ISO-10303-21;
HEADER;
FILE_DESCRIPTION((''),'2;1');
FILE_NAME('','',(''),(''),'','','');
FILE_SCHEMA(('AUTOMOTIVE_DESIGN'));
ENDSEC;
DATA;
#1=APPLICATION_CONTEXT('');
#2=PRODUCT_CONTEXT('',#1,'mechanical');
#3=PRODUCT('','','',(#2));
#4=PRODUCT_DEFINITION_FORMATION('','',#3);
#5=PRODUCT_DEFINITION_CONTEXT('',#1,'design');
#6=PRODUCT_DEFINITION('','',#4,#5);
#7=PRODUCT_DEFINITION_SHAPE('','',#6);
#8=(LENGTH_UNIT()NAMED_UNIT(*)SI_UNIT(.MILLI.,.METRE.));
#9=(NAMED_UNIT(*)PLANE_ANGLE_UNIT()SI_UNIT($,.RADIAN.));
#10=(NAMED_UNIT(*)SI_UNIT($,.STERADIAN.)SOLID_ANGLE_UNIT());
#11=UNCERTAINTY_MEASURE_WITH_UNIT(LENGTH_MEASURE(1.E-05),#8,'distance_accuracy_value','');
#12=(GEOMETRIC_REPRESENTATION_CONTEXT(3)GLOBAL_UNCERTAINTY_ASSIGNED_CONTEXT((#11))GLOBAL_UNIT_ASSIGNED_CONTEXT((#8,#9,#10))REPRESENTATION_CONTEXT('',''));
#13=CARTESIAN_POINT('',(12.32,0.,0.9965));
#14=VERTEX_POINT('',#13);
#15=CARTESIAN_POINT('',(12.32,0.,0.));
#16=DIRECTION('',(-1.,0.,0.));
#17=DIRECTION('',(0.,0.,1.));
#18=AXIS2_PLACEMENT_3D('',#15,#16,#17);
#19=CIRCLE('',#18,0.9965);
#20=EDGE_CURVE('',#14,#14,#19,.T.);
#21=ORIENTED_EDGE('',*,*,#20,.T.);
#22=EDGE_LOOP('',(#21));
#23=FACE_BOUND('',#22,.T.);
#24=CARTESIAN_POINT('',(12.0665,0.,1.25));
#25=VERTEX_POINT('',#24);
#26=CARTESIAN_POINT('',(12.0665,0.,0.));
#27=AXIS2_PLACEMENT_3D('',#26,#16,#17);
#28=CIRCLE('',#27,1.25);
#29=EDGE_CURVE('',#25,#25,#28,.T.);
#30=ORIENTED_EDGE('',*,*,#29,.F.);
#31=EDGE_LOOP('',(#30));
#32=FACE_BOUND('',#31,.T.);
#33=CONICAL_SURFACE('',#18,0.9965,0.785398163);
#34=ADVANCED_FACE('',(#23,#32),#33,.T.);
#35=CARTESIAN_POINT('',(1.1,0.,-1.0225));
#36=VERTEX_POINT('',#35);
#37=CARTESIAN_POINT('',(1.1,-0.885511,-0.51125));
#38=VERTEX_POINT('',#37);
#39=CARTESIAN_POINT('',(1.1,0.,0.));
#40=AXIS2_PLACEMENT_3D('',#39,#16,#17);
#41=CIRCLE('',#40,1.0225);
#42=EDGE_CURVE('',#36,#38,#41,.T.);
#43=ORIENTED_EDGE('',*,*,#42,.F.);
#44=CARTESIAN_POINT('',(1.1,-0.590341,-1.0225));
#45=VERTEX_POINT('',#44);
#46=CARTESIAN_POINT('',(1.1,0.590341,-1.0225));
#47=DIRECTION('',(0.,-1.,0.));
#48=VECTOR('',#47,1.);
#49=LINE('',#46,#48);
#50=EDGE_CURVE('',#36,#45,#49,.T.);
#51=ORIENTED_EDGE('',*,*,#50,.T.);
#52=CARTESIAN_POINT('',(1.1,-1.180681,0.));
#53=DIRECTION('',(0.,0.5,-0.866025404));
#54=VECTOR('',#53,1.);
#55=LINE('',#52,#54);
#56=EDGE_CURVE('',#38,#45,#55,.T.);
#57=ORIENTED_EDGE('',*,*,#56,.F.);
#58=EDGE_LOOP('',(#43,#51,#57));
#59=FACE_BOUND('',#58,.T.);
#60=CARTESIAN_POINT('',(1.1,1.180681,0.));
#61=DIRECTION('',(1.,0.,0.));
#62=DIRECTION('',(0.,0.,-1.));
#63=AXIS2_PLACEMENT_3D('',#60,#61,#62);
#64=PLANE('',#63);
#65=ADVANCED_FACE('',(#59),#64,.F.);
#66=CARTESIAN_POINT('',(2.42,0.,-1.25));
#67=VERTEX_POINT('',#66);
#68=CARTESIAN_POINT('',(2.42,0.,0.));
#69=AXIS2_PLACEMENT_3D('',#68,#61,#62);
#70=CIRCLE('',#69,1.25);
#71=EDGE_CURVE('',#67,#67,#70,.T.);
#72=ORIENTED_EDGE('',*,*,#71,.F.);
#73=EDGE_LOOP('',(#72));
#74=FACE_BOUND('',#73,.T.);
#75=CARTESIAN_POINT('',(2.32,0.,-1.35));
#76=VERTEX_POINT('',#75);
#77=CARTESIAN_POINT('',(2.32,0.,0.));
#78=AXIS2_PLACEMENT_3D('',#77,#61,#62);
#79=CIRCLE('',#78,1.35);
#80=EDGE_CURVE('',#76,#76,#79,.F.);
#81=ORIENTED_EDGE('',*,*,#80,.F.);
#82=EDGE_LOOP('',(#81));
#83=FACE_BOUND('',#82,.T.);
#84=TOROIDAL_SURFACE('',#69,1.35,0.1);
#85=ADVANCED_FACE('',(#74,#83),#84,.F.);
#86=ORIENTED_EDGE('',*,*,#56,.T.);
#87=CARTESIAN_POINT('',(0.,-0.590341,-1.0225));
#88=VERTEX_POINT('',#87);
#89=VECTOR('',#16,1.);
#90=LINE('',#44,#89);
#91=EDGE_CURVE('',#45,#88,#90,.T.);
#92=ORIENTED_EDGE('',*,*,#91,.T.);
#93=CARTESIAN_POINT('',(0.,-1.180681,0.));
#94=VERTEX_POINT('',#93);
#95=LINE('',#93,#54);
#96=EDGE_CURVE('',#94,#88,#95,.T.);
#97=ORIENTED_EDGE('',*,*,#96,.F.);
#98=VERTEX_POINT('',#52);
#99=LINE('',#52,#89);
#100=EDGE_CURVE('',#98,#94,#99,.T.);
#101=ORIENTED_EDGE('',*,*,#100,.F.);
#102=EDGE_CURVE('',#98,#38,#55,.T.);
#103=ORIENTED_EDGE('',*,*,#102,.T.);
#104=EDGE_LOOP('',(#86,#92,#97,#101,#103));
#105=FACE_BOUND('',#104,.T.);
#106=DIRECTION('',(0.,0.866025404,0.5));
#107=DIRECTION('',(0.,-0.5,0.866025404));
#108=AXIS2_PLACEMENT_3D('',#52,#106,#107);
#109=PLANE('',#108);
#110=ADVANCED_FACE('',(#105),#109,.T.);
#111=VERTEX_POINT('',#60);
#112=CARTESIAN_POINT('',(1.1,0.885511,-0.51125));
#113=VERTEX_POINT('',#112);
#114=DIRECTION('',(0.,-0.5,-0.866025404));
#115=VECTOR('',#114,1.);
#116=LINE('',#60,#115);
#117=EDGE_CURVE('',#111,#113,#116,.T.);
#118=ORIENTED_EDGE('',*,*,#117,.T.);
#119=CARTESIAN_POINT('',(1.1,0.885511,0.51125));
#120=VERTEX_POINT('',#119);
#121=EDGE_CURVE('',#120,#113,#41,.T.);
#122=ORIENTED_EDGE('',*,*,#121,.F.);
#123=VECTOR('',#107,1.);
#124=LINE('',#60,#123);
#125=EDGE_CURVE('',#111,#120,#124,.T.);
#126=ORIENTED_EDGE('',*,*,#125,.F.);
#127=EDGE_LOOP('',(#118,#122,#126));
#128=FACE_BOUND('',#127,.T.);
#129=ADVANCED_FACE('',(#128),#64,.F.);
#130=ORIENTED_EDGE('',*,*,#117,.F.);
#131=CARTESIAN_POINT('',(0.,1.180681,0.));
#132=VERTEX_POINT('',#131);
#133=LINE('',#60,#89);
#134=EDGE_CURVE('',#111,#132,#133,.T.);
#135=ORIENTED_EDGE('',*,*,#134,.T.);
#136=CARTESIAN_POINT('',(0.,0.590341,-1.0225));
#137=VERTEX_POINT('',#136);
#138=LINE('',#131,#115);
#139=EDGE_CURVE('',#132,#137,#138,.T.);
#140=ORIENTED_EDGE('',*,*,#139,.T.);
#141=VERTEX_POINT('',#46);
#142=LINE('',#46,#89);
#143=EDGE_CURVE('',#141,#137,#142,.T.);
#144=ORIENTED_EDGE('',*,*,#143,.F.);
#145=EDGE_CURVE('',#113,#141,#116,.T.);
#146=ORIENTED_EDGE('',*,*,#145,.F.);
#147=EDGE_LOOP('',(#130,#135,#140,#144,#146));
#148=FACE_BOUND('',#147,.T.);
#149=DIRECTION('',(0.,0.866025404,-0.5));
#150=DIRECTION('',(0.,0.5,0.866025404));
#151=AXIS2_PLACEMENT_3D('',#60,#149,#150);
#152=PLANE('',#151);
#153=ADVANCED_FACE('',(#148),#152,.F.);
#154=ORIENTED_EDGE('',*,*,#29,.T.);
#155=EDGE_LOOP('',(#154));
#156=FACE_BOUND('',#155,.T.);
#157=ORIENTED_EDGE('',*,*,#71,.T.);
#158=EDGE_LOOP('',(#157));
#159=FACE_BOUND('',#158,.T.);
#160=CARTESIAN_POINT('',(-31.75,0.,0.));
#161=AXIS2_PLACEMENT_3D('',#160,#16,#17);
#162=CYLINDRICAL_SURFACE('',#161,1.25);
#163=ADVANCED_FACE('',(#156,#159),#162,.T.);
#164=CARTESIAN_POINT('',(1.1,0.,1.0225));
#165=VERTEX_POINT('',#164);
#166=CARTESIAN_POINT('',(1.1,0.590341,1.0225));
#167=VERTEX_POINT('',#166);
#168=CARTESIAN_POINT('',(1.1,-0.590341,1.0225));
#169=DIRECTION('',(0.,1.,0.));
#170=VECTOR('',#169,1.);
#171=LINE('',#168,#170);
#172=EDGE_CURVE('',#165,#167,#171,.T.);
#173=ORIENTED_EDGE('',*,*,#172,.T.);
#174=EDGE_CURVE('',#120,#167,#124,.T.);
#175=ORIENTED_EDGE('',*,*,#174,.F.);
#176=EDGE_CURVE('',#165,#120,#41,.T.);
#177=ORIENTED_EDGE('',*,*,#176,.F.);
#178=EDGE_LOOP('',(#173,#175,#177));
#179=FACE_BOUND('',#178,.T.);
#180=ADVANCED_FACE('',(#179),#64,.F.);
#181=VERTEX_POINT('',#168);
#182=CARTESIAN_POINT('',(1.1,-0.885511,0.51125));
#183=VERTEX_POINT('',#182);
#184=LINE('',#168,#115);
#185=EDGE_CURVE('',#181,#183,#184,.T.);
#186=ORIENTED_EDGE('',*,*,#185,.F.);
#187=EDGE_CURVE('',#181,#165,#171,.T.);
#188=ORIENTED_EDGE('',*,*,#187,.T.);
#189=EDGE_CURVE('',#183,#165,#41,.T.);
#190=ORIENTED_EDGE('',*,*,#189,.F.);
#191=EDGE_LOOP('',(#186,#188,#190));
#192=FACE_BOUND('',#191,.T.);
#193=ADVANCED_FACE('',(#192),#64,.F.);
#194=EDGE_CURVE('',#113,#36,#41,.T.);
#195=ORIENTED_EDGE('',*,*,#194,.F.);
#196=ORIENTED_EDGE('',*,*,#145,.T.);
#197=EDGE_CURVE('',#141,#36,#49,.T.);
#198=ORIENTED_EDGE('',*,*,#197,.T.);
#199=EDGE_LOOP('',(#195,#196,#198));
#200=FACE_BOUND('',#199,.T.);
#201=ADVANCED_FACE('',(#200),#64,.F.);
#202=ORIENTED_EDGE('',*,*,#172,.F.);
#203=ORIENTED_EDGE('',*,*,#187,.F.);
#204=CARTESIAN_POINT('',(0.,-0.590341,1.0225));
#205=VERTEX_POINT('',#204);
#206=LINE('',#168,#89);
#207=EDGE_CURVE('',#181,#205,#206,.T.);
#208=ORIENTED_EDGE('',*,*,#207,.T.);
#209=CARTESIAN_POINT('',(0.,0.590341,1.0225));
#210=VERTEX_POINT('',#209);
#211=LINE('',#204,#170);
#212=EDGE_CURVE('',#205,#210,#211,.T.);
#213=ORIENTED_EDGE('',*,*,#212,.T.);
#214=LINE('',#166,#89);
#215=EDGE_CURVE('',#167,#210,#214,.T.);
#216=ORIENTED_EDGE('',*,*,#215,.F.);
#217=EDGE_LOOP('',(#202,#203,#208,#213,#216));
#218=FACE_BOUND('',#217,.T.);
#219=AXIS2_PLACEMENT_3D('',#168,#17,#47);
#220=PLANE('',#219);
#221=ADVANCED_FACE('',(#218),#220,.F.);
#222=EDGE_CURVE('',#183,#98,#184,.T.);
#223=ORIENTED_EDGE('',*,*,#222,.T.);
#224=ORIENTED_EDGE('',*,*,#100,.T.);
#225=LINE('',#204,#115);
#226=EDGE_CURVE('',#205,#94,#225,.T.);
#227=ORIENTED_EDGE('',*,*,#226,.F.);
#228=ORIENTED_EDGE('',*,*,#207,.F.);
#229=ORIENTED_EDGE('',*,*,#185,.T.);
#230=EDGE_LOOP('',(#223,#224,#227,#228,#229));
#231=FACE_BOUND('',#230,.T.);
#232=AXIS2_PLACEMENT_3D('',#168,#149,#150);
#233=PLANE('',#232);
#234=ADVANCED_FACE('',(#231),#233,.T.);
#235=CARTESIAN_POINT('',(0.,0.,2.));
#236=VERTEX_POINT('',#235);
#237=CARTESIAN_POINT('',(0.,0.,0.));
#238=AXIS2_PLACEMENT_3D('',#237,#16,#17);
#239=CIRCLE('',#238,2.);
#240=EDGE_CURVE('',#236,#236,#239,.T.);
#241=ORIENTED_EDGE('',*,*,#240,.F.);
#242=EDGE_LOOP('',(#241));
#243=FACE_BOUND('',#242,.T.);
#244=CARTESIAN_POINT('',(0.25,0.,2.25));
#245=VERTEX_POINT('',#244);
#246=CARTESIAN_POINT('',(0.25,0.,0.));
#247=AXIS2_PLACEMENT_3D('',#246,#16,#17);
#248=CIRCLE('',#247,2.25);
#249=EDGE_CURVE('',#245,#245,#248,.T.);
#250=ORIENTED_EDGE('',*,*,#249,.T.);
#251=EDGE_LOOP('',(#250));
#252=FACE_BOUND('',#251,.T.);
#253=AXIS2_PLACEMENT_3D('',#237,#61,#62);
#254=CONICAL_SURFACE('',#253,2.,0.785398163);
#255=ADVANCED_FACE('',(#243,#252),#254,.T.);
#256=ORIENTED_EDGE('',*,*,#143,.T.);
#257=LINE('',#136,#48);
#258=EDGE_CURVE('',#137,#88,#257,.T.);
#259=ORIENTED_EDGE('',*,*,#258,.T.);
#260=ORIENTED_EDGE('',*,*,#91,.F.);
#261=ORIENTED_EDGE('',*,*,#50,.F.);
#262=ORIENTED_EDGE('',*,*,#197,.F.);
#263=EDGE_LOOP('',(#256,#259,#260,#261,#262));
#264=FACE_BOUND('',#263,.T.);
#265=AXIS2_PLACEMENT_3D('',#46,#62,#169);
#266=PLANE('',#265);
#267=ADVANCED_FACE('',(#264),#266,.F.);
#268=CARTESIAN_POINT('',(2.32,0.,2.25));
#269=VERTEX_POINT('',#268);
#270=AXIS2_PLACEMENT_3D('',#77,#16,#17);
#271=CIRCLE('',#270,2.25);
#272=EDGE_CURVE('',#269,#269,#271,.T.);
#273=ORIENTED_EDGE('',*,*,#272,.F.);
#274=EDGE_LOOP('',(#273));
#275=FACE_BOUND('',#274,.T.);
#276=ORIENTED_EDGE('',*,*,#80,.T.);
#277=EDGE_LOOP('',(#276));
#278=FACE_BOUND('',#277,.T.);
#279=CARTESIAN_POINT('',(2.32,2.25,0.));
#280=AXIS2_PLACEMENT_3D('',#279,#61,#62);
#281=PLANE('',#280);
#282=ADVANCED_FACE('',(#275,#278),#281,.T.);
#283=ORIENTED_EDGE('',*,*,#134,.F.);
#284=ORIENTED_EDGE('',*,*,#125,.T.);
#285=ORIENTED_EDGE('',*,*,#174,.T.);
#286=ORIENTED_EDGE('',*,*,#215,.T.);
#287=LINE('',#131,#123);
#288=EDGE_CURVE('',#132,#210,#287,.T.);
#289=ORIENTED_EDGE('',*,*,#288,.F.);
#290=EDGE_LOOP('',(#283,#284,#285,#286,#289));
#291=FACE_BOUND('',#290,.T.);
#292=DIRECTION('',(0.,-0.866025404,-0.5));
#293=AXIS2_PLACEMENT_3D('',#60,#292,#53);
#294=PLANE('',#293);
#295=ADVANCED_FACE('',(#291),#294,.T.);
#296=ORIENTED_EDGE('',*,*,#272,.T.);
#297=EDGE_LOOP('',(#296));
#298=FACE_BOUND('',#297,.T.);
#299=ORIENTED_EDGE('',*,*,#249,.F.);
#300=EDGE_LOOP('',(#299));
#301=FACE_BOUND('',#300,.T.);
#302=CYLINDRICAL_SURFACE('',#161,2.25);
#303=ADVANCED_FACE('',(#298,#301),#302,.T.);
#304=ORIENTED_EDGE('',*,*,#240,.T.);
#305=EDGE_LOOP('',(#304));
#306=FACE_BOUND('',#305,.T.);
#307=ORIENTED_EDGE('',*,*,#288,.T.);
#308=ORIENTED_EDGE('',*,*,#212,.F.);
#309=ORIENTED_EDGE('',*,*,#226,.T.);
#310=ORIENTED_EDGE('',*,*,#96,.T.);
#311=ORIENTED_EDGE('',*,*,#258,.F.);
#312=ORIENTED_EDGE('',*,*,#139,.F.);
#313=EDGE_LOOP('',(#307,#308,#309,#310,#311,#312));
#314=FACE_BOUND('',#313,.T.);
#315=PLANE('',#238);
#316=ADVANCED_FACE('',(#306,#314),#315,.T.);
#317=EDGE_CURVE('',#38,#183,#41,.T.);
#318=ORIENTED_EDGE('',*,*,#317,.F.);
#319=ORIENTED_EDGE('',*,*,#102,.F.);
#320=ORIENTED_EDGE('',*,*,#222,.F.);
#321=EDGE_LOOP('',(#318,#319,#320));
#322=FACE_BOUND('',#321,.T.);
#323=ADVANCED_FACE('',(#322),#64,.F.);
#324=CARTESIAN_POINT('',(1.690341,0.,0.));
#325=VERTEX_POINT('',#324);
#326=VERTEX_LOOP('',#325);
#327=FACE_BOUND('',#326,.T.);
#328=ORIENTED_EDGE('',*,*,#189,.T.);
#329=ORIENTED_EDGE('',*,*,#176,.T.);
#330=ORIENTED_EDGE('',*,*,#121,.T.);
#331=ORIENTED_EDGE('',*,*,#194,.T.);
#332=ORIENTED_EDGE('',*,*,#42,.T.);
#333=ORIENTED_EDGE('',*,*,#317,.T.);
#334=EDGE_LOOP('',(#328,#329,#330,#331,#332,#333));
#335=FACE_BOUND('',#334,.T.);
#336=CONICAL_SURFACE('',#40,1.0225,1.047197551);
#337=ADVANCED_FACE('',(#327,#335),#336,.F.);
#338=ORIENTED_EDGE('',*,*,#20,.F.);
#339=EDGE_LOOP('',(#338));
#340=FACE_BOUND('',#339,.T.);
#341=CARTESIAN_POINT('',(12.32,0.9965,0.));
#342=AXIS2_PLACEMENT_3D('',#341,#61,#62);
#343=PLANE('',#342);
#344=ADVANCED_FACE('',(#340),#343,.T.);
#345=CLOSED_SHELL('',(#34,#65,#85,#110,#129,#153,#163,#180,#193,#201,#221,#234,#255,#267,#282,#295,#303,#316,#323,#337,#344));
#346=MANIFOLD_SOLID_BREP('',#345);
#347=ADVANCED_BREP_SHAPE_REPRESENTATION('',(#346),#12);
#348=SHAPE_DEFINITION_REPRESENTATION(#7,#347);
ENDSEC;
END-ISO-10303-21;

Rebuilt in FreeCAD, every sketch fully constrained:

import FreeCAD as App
import Part
import Sketcher
from FreeCAD import Vector
Q = App.Units.Quantity


def edges_at(feature, points):
    """Names of the edges that pass closest to the given points."""
    edges = feature.Shape.Edges
    near = lambda p: min(range(len(edges)), key=lambda i: edges[i].distToShape(Part.Vertex(*p))[0])
    return sorted({f"Edge{near(p) + 1}" for p in points})


def add_polygon(sketch, points):
    """Adds a closed chain of lines whose ends are joined by coincident constraints."""
    first, n = sketch.GeometryCount, len(points)
    for a, b in zip(points, points[1:] + points[:1]):
        sketch.addGeometry(Part.LineSegment(App.Vector(*a, 0), App.Vector(*b, 0)), False)
    for i in range(n):
        sketch.addConstraint(Sketcher.Constraint("Coincident", first + i, 2, first + (i + 1) % n, 1))

doc = App.newDocument("Part")
body = doc.addObject("PartDesign::Body", "Body")

sketch1 = body.newObject("Sketcher::SketchObject", "Sketch")
sketch1.AttachmentSupport = (doc.getObject("XY_Plane"), [""])
sketch1.MapMode = "FlatFace"
add_polygon(sketch1, [(0, 2), (0, 0), (12.32, 0), (12.32, 0.9965), (12.0665, 1.25), (2.32, 1.25), (2.32, 2.25), (0.25, 2.25)])
sketch1.addConstraint([
    Sketcher.Constraint("Vertical", 0),
    Sketcher.Constraint("Horizontal", 1),
    Sketcher.Constraint("Vertical", 2),
    Sketcher.Constraint("Horizontal", 4),
    Sketcher.Constraint("Vertical", 5),
    Sketcher.Constraint("Horizontal", 6),
    Sketcher.Constraint("Coincident", 0, 2, -1, 1),
    Sketcher.Constraint("Perpendicular", 3, 7),
    Sketcher.Constraint("DistanceY", 0, 2, 0, 1, Q("2 mm")),
    Sketcher.Constraint("DistanceY", 5, 1, 5, 2, Q("1 mm")),
    Sketcher.Constraint("Angle", 3, Q("135 deg")),
    Sketcher.Constraint("DistanceX", 4, 2, 2, 2, Q("10 mm")),
    Sketcher.Constraint("DistanceX", 1, 1, 1, 2, Q("12.32 mm")),
    Sketcher.Constraint("DistanceX", 6, 2, 6, 1, Q("2.07 mm")),
    Sketcher.Constraint("DistanceX", 4, 2, 4, 1, Q("9.7465 mm")),
])
revolution = body.newObject("PartDesign::Revolution", "Revolution")
revolution.Profile = sketch1
revolution.ReferenceAxis = (sketch1, ["H_Axis"])
revolution.Angle = 360
doc.recompute()

fillet = body.newObject("PartDesign::Fillet", "Fillet")
fillet.Base = (revolution, edges_at(revolution, [(2.32, 0, -1.25)]))
fillet.Radius = 0.1

sketch2 = body.newObject("Sketcher::SketchObject", "Sketch001")
sketch2.AttachmentSupport = (doc.getObject("XY_Plane"), [""])
sketch2.MapMode = "FlatFace"
add_polygon(sketch2, [(1.1, 1.0225), (0, 1.0225), (0, 0), (1.690341, 0)])
sketch2.addConstraint([
    Sketcher.Constraint("Horizontal", 0),
    Sketcher.Constraint("Vertical", 1),
    Sketcher.Constraint("Horizontal", 2),
    Sketcher.Constraint("Coincident", 1, 2, -1, 1),
    Sketcher.Constraint("Angle", 3, Q("120 deg")),
    Sketcher.Constraint("DistanceX", 0, 2, 0, 1, Q("1.1 mm")),
    Sketcher.Constraint("DistanceY", 1, 2, 1, 1, Q("1.0225 mm")),
])
groove = body.newObject("PartDesign::Groove", "Groove")
groove.Profile = sketch2
groove.ReferenceAxis = (sketch2, ["H_Axis"])
groove.Angle = 360

sketch3 = body.newObject("Sketcher::SketchObject", "Sketch002")
sketch3.AttachmentSupport = (doc.getObject("YZ_Plane"), [""])
sketch3.MapMode = "FlatFace"
add_polygon(sketch3, [(1.180681, 0), (0.590341, -1.0225), (-0.590341, -1.0225), (-1.180681, 0), (-0.590341, 1.0225), (0.590341, 1.0225)])
sketch3.addConstraint([
    Sketcher.Constraint("Horizontal", 1),
    Sketcher.Constraint("Horizontal", 4),
    Sketcher.Constraint("Symmetric", 0, 2, 3, 2, -1, 1),
    Sketcher.Constraint("Symmetric", 2, 2, 5, 2, -1, 1),
    Sketcher.Constraint("PointOnObject", 2, 2, -1),
    Sketcher.Constraint("Parallel", 2, 5),
    Sketcher.Constraint("Vertical", 1, 2, 3, 2),
    Sketcher.Constraint("Angle", 0, Q("-120 deg")),
    Sketcher.Constraint("DistanceY", 1, 2, 3, 2, Q("2.045 mm")),
    Sketcher.Constraint("DistanceX", 1, 2, 1, 1, Q("1.180681 mm")),
])
pocket1 = body.newObject("PartDesign::Pocket", "Pocket")
pocket1.Profile = sketch3
pocket1.Length = 1.1
pocket1.Reversed = True

doc.recompute()
